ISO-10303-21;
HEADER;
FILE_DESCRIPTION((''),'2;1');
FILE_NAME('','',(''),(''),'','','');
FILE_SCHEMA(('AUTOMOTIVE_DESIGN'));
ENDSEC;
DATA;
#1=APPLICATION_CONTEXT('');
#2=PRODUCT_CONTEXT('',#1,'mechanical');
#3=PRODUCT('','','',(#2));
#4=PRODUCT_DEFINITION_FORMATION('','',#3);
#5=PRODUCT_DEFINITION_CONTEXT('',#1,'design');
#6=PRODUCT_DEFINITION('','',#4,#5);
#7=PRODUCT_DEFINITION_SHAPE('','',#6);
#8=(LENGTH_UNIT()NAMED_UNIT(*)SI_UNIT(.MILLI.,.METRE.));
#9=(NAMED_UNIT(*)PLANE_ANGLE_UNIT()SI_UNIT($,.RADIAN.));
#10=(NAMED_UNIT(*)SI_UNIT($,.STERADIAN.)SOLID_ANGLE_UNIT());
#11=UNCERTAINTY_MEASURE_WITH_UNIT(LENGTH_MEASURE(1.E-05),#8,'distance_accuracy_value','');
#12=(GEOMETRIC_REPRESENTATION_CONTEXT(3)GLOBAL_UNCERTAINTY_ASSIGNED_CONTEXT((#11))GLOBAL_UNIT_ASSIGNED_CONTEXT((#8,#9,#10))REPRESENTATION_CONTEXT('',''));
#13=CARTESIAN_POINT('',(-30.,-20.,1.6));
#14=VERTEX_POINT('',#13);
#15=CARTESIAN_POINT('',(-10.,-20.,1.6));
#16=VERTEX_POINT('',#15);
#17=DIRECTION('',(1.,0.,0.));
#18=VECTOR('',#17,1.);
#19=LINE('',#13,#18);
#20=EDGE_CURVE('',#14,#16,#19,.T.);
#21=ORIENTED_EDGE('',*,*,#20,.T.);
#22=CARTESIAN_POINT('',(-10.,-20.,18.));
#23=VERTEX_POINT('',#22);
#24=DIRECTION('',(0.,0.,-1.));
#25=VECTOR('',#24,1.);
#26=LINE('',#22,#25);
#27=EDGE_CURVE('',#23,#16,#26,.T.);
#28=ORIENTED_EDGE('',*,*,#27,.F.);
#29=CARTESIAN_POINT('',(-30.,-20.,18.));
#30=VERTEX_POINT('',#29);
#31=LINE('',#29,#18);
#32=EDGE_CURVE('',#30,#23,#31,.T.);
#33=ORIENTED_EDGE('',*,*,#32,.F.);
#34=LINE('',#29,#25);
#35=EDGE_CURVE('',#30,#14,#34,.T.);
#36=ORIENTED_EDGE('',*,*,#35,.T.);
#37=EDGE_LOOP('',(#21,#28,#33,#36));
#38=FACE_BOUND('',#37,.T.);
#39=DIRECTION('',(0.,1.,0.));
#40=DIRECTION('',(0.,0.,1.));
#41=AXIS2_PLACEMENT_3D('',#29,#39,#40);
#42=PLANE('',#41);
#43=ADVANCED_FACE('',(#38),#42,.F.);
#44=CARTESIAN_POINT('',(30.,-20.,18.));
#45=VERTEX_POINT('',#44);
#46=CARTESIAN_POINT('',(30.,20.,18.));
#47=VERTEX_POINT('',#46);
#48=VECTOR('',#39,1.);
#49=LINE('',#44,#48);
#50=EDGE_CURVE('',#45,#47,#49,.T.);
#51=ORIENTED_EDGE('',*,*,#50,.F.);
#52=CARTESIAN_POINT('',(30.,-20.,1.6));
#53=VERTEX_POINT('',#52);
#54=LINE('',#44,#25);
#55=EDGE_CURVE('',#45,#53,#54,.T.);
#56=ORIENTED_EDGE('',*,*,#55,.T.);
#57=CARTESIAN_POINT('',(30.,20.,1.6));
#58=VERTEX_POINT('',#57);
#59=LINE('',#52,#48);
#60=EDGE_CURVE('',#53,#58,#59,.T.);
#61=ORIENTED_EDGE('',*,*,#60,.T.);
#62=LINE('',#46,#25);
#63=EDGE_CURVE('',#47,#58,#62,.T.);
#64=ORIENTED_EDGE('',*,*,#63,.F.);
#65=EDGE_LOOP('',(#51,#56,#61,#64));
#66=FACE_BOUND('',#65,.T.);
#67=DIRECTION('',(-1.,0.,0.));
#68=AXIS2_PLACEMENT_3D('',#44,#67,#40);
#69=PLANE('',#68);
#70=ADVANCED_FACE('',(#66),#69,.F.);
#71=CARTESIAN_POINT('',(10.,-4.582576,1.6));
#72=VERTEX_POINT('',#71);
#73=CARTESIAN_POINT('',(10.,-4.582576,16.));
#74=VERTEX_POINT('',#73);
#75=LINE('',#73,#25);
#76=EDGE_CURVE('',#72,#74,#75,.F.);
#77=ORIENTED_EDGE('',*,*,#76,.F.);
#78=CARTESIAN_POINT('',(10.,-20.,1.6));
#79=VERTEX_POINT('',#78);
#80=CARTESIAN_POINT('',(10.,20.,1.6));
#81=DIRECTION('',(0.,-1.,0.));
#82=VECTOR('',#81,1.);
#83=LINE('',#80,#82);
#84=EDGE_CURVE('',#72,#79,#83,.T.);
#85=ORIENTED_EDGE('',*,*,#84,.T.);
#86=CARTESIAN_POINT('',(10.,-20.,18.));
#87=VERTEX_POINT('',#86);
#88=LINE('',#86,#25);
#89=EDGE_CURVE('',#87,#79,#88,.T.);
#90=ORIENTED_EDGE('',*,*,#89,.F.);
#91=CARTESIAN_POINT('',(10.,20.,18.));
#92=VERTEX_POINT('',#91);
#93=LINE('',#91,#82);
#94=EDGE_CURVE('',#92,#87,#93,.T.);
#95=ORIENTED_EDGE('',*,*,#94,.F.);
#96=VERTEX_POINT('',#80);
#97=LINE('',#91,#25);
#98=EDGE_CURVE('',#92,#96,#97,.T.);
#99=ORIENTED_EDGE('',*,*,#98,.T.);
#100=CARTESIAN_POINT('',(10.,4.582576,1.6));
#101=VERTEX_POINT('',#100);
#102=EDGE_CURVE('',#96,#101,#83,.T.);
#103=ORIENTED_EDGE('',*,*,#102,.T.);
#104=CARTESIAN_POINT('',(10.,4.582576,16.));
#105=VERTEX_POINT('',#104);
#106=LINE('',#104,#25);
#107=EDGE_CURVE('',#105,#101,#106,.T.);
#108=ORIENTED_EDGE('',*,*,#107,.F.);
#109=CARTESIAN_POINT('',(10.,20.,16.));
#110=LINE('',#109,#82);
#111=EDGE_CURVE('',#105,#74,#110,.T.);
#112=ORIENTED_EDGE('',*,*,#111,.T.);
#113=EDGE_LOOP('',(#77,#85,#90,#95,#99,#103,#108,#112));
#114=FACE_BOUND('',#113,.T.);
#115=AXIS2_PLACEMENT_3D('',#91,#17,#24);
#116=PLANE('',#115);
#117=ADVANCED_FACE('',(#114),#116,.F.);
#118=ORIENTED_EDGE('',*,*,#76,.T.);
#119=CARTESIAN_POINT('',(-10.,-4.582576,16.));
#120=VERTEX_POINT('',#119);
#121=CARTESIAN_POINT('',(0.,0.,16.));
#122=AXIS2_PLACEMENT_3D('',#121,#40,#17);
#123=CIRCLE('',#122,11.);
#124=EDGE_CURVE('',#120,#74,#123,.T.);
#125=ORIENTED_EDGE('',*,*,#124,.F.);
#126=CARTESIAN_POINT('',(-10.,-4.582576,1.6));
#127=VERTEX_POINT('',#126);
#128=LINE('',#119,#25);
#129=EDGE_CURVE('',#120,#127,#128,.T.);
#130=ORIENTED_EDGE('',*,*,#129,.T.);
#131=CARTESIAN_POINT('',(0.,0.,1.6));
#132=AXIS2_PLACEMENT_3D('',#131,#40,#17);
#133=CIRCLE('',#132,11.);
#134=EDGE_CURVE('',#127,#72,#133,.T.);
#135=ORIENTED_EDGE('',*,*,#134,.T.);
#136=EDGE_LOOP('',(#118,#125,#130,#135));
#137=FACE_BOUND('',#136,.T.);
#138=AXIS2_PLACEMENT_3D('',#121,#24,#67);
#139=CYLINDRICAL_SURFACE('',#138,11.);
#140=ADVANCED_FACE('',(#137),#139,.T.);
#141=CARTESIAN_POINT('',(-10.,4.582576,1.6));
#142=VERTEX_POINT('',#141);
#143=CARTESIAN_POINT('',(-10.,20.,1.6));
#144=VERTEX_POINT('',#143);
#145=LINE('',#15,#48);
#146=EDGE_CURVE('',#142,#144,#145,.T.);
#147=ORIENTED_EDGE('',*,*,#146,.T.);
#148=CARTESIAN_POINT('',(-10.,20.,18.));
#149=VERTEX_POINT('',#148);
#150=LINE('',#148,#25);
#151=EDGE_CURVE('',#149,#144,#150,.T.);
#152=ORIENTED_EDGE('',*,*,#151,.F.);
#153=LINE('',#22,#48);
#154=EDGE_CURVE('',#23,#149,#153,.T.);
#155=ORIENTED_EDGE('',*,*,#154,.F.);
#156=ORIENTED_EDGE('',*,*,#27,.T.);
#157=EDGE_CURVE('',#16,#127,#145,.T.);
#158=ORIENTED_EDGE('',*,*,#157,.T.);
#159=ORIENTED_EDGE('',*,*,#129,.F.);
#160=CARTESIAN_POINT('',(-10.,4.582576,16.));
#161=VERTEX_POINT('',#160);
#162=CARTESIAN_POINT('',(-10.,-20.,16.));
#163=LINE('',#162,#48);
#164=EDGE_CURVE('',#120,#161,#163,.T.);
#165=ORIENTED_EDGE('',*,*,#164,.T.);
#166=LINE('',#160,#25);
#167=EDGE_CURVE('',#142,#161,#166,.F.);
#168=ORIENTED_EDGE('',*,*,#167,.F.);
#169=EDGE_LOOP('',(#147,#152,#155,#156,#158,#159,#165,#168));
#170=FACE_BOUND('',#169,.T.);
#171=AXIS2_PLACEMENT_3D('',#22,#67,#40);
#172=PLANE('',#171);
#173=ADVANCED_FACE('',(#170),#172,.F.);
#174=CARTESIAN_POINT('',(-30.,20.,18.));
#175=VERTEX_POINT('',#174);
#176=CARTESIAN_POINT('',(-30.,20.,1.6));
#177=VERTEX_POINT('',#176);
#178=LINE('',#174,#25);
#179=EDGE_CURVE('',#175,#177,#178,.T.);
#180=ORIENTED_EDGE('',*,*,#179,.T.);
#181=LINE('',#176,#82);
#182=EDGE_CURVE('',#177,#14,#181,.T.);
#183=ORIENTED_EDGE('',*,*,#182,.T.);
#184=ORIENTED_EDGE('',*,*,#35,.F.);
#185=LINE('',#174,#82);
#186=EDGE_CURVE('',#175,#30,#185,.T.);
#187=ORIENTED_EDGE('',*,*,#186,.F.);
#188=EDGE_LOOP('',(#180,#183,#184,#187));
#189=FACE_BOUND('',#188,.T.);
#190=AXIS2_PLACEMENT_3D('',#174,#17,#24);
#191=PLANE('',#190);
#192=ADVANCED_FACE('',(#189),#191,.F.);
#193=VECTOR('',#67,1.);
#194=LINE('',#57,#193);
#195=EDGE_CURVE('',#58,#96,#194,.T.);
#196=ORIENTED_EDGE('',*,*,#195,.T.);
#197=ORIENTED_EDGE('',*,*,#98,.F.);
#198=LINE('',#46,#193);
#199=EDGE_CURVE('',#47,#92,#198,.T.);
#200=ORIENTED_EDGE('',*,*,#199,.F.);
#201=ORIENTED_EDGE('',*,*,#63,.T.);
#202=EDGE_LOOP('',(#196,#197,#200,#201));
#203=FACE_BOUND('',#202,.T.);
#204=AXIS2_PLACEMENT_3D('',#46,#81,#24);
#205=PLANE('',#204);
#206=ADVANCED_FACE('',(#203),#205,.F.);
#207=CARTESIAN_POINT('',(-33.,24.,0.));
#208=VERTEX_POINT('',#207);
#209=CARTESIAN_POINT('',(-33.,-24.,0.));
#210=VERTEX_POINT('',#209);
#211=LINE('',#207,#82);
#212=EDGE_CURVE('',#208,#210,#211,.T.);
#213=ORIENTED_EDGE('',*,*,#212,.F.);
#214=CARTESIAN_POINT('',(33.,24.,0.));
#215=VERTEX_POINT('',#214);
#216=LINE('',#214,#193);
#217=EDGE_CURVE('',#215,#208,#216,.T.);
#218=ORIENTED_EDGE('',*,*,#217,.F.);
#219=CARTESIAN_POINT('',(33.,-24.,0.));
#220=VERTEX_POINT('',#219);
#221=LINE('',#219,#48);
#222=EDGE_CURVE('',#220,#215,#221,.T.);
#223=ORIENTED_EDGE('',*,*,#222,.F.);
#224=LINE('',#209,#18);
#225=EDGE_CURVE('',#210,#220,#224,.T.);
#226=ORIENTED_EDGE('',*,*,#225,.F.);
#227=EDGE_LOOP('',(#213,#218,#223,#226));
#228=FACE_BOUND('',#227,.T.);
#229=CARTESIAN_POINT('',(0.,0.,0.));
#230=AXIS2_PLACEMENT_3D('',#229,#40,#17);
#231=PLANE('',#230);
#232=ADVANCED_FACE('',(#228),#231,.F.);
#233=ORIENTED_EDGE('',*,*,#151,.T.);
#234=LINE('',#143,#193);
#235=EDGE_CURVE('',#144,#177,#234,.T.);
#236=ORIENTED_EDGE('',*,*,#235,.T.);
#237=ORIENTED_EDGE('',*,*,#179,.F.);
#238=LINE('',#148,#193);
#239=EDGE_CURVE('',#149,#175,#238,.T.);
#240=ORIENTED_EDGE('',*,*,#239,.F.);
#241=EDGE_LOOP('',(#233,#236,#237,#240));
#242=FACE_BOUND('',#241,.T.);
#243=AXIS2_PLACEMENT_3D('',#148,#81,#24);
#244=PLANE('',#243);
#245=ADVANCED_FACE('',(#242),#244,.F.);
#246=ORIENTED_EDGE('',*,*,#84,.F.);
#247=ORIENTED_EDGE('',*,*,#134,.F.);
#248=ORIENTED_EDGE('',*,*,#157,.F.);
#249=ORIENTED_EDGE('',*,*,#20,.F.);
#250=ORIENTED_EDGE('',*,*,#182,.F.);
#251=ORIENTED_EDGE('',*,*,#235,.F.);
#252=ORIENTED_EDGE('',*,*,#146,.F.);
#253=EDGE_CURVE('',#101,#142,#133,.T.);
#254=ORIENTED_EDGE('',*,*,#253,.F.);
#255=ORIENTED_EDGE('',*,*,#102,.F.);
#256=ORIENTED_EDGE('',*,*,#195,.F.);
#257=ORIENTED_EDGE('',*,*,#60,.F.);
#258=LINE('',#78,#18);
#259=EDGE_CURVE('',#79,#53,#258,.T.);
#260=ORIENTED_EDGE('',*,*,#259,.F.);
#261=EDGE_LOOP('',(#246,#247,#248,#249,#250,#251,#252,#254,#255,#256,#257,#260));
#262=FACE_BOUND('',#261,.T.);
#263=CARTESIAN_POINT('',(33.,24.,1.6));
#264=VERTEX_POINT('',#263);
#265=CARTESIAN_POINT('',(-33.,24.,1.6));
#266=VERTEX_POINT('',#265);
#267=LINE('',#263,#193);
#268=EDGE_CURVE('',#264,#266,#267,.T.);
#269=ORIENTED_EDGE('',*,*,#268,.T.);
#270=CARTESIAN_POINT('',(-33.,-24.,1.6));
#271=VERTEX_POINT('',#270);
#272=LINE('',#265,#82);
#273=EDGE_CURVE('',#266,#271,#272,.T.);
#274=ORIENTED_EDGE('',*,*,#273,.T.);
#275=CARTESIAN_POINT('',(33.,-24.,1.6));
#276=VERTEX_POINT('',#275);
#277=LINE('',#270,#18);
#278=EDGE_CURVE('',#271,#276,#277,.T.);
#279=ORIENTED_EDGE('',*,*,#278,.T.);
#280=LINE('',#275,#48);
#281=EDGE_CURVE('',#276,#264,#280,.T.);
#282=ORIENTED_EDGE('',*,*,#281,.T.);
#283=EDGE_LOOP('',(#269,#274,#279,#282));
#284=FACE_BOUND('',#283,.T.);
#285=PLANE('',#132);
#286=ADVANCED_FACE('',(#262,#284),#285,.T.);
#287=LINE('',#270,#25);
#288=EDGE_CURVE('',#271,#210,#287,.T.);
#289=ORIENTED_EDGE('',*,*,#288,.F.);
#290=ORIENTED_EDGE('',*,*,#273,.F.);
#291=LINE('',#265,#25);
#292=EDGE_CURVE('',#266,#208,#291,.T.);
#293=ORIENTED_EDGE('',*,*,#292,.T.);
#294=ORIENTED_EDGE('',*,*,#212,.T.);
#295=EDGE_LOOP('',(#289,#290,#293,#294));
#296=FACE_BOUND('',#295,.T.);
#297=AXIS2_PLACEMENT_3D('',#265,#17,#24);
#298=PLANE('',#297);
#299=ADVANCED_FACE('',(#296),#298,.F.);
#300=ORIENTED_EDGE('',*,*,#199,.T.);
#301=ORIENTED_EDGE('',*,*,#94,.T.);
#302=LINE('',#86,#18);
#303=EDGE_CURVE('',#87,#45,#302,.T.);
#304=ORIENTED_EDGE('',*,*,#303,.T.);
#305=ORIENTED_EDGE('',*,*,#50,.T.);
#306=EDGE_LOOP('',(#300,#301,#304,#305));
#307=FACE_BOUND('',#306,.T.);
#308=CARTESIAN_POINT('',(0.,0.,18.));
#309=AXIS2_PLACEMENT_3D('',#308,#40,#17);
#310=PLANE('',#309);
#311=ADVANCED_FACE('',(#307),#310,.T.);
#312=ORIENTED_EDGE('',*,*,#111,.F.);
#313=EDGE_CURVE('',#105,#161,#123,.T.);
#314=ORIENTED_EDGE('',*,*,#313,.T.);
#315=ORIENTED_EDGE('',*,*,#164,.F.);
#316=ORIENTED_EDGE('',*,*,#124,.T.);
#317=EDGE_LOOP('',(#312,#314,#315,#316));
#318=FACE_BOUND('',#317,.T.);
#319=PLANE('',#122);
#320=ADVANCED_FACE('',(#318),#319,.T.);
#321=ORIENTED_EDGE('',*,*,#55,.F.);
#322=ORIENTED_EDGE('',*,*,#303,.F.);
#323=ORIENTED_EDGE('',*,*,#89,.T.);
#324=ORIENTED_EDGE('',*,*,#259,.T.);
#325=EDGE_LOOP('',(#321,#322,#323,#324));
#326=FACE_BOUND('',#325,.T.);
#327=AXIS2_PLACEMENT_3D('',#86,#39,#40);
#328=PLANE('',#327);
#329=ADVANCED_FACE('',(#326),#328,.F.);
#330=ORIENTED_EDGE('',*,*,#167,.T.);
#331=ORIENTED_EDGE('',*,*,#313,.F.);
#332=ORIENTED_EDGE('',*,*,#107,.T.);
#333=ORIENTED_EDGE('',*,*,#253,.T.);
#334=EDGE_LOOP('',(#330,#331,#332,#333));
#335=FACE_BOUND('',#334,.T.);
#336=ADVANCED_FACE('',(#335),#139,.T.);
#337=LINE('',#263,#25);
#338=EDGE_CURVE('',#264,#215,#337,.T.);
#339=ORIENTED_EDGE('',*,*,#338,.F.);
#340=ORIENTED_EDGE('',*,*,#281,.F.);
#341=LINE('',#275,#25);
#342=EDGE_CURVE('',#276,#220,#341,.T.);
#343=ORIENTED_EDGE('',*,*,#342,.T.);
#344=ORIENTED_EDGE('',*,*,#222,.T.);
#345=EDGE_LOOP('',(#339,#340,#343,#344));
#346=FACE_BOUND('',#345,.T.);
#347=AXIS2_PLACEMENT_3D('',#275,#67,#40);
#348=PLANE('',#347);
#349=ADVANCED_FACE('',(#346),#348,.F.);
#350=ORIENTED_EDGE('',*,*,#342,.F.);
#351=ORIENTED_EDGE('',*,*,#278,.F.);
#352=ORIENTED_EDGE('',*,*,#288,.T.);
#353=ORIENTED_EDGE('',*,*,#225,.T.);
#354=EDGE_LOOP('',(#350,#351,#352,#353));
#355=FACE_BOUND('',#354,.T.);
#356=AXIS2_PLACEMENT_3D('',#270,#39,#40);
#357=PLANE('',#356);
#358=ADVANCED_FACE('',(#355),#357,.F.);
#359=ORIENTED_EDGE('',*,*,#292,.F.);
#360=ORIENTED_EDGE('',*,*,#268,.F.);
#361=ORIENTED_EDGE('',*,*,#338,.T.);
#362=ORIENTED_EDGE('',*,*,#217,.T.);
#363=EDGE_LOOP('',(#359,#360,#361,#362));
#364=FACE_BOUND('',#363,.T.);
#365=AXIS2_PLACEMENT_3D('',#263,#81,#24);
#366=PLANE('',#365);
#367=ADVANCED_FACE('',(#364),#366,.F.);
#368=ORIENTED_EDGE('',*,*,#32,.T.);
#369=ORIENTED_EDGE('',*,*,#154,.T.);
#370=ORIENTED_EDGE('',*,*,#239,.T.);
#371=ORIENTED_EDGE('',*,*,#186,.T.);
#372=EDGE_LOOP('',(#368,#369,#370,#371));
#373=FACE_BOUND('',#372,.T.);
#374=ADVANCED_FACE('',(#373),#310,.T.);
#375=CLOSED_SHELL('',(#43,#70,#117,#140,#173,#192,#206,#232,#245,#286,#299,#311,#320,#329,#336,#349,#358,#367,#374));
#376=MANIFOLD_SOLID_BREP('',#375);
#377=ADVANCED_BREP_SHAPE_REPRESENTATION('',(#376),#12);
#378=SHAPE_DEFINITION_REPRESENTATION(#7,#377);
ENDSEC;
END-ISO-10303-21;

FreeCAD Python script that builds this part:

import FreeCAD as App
import Part
import Sketcher
from FreeCAD import Vector

doc = App.newDocument("Part")
body = doc.addObject("PartDesign::Body", "Body")

# Sketch on XY plane
sketch1 = body.newObject("Sketcher::SketchObject", "Sketch")
sketch1.AttachmentSupport = (doc.getObject("XY_Plane"), [""])
sketch1.MapMode = "FlatFace"
sketch1.addGeometry([
    Part.LineSegment(Vector(-33, 24, 0), Vector(-33, -24, 0)),
    Part.LineSegment(Vector(-33, -24, 0), Vector(33, -24, 0)),
    Part.LineSegment(Vector(33, -24, 0), Vector(33, 24, 0)),
    Part.LineSegment(Vector(33, 24, 0), Vector(-33, 24, 0)),
], False)
sketch1.addConstraint([
    Sketcher.Constraint("Coincident", 0, 2, 1, 1),
    Sketcher.Constraint("Coincident", 1, 2, 2, 1),
    Sketcher.Constraint("Coincident", 2, 2, 3, 1),
    Sketcher.Constraint("Coincident", 3, 2, 0, 1),
    Sketcher.Constraint("Vertical", 0),
    Sketcher.Constraint("Horizontal", 1),
    Sketcher.Constraint("Vertical", 2),
    Sketcher.Constraint("Horizontal", 3),
    Sketcher.Constraint("Symmetric", 0, 2, 2, 2, -1, 1),
    Sketcher.Constraint("DistanceX", 1, 1, 1, 2, 66.0),
    Sketcher.Constraint("DistanceY", 0, 2, 0, 1, 48.0),
])
pad1 = body.newObject("PartDesign::Pad", "Pad")
pad1.Profile = sketch1
pad1.Length = 1.6

# Sketch on XY plane
sketch2 = body.newObject("Sketcher::SketchObject", "Sketch001")
sketch2.AttachmentSupport = (doc.getObject("XY_Plane"), [""])
sketch2.MapMode = "FlatFace"
sketch2.AttachmentOffset = App.Placement(Vector(0, 0, 1.6), App.Rotation())
sketch2.addGeometry([
    Part.LineSegment(Vector(-30, 20, 0), Vector(-30, -20, 0)),
    Part.LineSegment(Vector(-30, -20, 0), Vector(-10, -20, 0)),
    Part.LineSegment(Vector(-10, -20, 0), Vector(-10, 20, 0)),
    Part.LineSegment(Vector(-10, 20, 0), Vector(-30, 20, 0)),
], False)
sketch2.addConstraint([
    Sketcher.Constraint("Coincident", 0, 2, 1, 1),
    Sketcher.Constraint("Coincident", 1, 2, 2, 1),
    Sketcher.Constraint("Coincident", 2, 2, 3, 1),
    Sketcher.Constraint("Coincident", 3, 2, 0, 1),
    Sketcher.Constraint("Vertical", 0),
    Sketcher.Constraint("Horizontal", 1),
    Sketcher.Constraint("Vertical", 2),
    Sketcher.Constraint("Horizontal", 3),
    Sketcher.Constraint("DistanceX", 1, 1, 1, 2, 20.0),
    Sketcher.Constraint("DistanceY", 0, 2, 0, 1, 40.0),
    Sketcher.Constraint("DistanceX", 0, 2, -1, 1, 30.0),
    Sketcher.Constraint("DistanceY", 0, 2, -1, 1, 20.0),
])
pad2 = body.newObject("PartDesign::Pad", "Pad001")
pad2.Profile = sketch2
pad2.Length = 16.4

# Sketch on XY plane
sketch3 = body.newObject("Sketcher::SketchObject", "Sketch002")
sketch3.AttachmentSupport = (doc.getObject("XY_Plane"), [""])
sketch3.MapMode = "FlatFace"
sketch3.AttachmentOffset = App.Placement(Vector(0, 0, 1.6), App.Rotation())
sketch3.addGeometry([
    Part.LineSegment(Vector(10, 20, 0), Vector(10, -20, 0)),
    Part.LineSegment(Vector(10, -20, 0), Vector(30, -20, 0)),
    Part.LineSegment(Vector(30, -20, 0), Vector(30, 20, 0)),
    Part.LineSegment(Vector(30, 20, 0), Vector(10, 20, 0)),
], False)
sketch3.addConstraint([
    Sketcher.Constraint("Coincident", 0, 2, 1, 1),
    Sketcher.Constraint("Coincident", 1, 2, 2, 1),
    Sketcher.Constraint("Coincident", 2, 2, 3, 1),
    Sketcher.Constraint("Coincident", 3, 2, 0, 1),
    Sketcher.Constraint("Vertical", 0),
    Sketcher.Constraint("Horizontal", 1),
    Sketcher.Constraint("Vertical", 2),
    Sketcher.Constraint("Horizontal", 3),
    Sketcher.Constraint("DistanceX", 1, 1, 1, 2, 20.0),
    Sketcher.Constraint("DistanceY", 0, 2, 0, 1, 40.0),
    Sketcher.Constraint("DistanceX", -1, 1, 0, 2, 10.0),
    Sketcher.Constraint("DistanceY", 0, 2, -1, 1, 20.0),
])
pad3 = body.newObject("PartDesign::Pad", "Pad002")
pad3.Profile = sketch3
pad3.Length = 16.4

# Sketch on XY plane
sketch4 = body.newObject("Sketcher::SketchObject", "Sketch003")
sketch4.AttachmentSupport = (doc.getObject("XY_Plane"), [""])
sketch4.MapMode = "FlatFace"
sketch4.AttachmentOffset = App.Placement(Vector(0, 0, 1.6), App.Rotation())
sketch4.addGeometry(Part.Circle(Vector(0, 0, 0), Vector(0, 0, 1), 11), False)
sketch4.addConstraint([
    Sketcher.Constraint("Coincident", 0, 3, -1, 1),
    Sketcher.Constraint("Diameter", 0, 22.0),
])
pad4 = body.newObject("PartDesign::Pad", "Pad003")
pad4.Profile = sketch4
pad4.Length = 14.4

doc.recompute()
